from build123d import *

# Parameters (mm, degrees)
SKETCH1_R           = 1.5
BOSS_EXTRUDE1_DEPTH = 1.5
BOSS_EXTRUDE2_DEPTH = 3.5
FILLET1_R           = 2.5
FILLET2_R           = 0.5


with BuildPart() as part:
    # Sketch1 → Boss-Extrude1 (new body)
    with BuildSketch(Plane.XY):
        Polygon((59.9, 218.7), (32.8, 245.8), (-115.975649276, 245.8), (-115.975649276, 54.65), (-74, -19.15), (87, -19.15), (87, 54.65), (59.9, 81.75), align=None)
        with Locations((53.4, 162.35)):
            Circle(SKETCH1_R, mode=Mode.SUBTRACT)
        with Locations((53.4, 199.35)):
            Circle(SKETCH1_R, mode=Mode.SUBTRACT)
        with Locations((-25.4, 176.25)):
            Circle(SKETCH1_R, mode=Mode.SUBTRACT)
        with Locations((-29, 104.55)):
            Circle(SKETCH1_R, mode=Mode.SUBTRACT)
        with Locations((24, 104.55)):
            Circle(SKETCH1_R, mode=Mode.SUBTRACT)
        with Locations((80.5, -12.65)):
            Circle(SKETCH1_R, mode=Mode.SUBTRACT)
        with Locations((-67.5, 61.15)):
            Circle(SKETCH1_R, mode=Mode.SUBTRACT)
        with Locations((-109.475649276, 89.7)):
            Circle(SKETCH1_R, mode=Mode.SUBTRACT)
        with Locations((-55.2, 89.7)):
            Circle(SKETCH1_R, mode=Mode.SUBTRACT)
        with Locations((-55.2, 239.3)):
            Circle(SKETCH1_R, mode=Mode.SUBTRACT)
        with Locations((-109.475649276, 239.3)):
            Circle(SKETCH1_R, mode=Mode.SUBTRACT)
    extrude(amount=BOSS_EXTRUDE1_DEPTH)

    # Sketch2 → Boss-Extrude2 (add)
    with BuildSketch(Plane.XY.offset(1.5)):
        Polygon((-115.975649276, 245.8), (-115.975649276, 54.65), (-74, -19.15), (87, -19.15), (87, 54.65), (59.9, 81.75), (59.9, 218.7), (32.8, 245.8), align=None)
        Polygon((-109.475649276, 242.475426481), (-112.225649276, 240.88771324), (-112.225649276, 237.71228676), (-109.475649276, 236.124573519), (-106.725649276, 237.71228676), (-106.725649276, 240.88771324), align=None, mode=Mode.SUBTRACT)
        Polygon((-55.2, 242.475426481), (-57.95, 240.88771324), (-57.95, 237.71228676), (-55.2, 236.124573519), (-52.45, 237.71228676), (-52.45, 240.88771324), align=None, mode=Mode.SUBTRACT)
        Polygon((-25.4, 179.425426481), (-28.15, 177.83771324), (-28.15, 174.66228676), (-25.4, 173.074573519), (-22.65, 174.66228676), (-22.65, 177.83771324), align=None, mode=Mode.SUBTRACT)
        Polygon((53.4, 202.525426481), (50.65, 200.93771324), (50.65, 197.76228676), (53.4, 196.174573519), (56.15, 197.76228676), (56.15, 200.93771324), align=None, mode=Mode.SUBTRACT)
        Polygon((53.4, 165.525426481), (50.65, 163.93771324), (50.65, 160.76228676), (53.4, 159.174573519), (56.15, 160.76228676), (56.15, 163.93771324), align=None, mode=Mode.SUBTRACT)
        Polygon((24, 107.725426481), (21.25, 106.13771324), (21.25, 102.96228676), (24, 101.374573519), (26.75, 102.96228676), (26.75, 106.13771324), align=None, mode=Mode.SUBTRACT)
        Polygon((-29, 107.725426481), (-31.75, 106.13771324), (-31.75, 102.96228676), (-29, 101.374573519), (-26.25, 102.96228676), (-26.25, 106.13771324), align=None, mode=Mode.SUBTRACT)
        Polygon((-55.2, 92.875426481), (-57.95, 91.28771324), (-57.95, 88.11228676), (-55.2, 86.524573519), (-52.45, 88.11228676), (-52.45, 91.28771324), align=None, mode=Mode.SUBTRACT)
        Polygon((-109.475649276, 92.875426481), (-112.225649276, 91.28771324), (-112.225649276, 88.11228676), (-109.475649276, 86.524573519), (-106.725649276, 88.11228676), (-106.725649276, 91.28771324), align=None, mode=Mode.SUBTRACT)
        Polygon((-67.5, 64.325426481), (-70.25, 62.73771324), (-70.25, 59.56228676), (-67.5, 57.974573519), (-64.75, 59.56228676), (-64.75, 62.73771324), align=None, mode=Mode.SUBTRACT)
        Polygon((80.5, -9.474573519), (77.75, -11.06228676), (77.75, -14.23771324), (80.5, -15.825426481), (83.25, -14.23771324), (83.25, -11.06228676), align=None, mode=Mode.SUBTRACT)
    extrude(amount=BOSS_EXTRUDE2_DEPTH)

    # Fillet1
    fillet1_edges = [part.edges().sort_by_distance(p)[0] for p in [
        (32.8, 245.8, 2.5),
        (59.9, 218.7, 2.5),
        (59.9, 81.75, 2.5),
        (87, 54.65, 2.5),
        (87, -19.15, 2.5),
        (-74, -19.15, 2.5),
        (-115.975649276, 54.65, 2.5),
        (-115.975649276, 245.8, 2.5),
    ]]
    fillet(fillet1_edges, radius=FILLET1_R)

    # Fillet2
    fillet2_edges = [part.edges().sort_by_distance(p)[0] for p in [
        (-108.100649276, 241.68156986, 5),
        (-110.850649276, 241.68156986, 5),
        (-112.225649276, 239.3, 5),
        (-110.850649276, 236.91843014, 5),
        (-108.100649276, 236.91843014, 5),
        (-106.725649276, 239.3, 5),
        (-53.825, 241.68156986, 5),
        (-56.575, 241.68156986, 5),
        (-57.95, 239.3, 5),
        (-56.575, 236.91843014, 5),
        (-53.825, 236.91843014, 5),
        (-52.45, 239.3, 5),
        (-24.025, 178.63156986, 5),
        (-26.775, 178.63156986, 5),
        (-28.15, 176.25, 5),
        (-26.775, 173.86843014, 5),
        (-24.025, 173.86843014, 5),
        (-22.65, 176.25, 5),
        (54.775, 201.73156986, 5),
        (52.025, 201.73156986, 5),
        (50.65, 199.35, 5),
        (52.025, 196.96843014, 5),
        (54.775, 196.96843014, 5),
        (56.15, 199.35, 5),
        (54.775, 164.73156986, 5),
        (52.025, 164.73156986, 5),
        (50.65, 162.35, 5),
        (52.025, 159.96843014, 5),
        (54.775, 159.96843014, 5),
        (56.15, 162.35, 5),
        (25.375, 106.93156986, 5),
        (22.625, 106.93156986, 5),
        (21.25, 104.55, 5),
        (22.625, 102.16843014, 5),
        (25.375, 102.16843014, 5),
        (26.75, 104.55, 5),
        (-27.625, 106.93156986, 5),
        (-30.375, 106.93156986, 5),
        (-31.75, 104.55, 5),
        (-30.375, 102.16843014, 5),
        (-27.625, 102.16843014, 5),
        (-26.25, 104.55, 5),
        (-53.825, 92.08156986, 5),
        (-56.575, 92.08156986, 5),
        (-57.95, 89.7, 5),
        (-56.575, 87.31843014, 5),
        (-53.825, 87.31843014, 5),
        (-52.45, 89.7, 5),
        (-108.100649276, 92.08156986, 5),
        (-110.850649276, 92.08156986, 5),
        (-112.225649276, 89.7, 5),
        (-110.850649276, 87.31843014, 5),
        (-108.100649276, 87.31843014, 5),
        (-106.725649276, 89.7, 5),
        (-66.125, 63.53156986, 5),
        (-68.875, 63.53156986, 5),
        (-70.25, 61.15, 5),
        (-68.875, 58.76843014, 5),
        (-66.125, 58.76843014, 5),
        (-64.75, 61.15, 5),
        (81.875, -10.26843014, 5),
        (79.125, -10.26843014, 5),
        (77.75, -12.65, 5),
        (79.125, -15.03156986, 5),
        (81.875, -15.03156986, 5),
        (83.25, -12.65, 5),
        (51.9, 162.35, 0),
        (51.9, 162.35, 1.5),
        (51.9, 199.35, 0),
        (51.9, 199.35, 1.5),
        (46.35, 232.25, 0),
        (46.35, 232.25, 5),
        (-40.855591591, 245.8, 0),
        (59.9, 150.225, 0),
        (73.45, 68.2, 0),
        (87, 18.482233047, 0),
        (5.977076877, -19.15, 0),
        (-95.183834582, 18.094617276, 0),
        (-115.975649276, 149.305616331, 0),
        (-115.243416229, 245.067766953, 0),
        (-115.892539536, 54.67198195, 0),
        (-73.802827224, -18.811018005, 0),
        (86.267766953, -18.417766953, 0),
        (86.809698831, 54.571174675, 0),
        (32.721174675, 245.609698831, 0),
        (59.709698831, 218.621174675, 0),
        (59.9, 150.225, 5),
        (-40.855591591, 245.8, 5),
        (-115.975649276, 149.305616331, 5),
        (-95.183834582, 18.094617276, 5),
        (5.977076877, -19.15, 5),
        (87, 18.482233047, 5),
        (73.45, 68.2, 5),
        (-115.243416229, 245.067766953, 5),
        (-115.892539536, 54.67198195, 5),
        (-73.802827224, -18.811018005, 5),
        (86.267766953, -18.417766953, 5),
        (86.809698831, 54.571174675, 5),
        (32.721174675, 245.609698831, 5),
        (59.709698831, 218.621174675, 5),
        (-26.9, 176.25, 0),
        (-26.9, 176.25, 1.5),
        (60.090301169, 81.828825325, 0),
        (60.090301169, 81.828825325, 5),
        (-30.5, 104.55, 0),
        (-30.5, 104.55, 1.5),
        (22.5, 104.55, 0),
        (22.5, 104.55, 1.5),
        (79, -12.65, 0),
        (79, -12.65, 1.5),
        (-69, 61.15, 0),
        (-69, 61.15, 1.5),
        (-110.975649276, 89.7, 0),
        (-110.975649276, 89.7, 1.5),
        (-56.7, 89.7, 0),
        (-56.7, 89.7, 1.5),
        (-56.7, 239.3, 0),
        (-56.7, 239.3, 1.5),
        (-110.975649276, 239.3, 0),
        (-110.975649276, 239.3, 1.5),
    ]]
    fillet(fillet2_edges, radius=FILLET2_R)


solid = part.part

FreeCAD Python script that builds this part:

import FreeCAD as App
import Part
import Sketcher

V = App.Vector
Q = App.Units.Quantity


def edges_at(feature, points):
    """Names of the edges that pass closest to the given points."""
    edges = feature.Shape.Edges
    near = lambda p: min(range(len(edges)), key=lambda i: edges[i].distToShape(Part.Vertex(*p))[0])
    return sorted({f"Edge{near(p) + 1}" for p in points})


def add_polygon(sketch, points):
    """Adds a closed chain of lines whose ends are joined by coincident constraints."""
    first, n = sketch.GeometryCount, len(points)
    for a, b in zip(points, points[1:] + points[:1]):
        sketch.addGeometry(Part.LineSegment(App.Vector(*a, 0), App.Vector(*b, 0)), False)
    for i in range(n):
        sketch.addConstraint(Sketcher.Constraint("Coincident", first + i, 2, first + (i + 1) % n, 1))

doc = App.newDocument("Part")
body = doc.addObject("PartDesign::Body", "Body")

sketch1 = body.newObject("Sketcher::SketchObject", "Sketch")
sketch1.AttachmentSupport = (doc.getObject("XY_Plane"), [""])
sketch1.MapMode = "FlatFace"
add_polygon(sketch1, [(59.9, 218.7), (32.8, 245.8), (-116, 245.8), (-116, 54.6), (-74, -19.1), (87, -19.1), (87, 54.6), (59.9, 81.8)])
sketch1.addGeometry(Part.Circle(V(-67.5, 61.1, 0), V(0, 0, 1), 1.5), False)
sketch1.addGeometry(Part.Circle(V(-109.5, 89.7, 0), V(0, 0, 1), 1.5), False)
sketch1.addGeometry(Part.Circle(V(-55.2, 89.7, 0), V(0, 0, 1), 1.5), False)
sketch1.addGeometry(Part.Circle(V(-29, 104.5, 0), V(0, 0, 1), 1.5), False)
sketch1.addGeometry(Part.Circle(V(80.5, -12.7, 0), V(0, 0, 1), 1.5), False)
sketch1.addGeometry(Part.Circle(V(24, 104.5, 0), V(0, 0, 1), 1.5), False)
sketch1.addGeometry(Part.Circle(V(-25.4, 176.2, 0), V(0, 0, 1), 1.5), False)
sketch1.addGeometry(Part.Circle(V(-109.5, 239.3, 0), V(0, 0, 1), 1.5), False)
sketch1.addGeometry(Part.Circle(V(-55.2, 239.3, 0), V(0, 0, 1), 1.5), False)
sketch1.addGeometry(Part.Circle(V(53.4, 162.3, 0), V(0, 0, 1), 1.5), False)
sketch1.addGeometry(Part.Circle(V(53.4, 199.3, 0), V(0, 0, 1), 1.5), False)
sketch1.addConstraint([
    Sketcher.Constraint("Horizontal", 1),
    Sketcher.Constraint("Vertical", 2),
    Sketcher.Constraint("Horizontal", 4),
    Sketcher.Constraint("Vertical", 5),
    Sketcher.Constraint("Vertical", 7),
    Sketcher.Constraint("Equal", 8, 9),
    Sketcher.Constraint("Equal", 9, 10),
    Sketcher.Constraint("Equal", 10, 11),
    Sketcher.Constraint("Equal", 11, 12),
    Sketcher.Constraint("Equal", 12, 13),
    Sketcher.Constraint("Equal", 13, 14),
    Sketcher.Constraint("Equal", 14, 15),
    Sketcher.Constraint("Equal", 15, 16),
    Sketcher.Constraint("Equal", 16, 17),
    Sketcher.Constraint("Equal", 17, 18),
    Sketcher.Constraint("Parallel", 0, 6),
    Sketcher.Constraint("Horizontal", 9, 3, 10, 3),
    Sketcher.Constraint("Horizontal", 11, 3, 13, 3),
    Sketcher.Constraint("Horizontal", 15, 3, 16, 3),
    Sketcher.Constraint("Horizontal", 2, 2, 5, 2),
    Sketcher.Constraint("Vertical", 9, 3, 15, 3),
    Sketcher.Constraint("Vertical", 10, 3, 16, 3),
    Sketcher.Constraint("Vertical", 17, 3, 18, 3),
    Sketcher.Constraint("Equal", 0, 6),
    Sketcher.Constraint("Diameter", 8, Q("3 mm")),
    Sketcher.Constraint("DistanceX", 4, 1, 4, 2, Q("161 mm")),
    Sketcher.Constraint("Angle", 0, Q("135 deg")),
    Sketcher.Constraint("DistanceY", 5, 1, 5, 2, Q("73.8 mm")),
    Sketcher.Constraint("DistanceX", 11, 3, -1, 1, Q("29 mm")),
    Sketcher.Constraint("DistanceX", -1, 1, 13, 3, Q("24 mm")),
    Sketcher.Constraint("DistanceX", 3, 2, -1, 1, Q("74 mm")),
    Sketcher.Constraint("DistanceX", 8, 3, 12, 3, Q("148 mm")),
    Sketcher.Constraint("DistanceY", 17, 3, 18, 3, Q("37 mm")),
    Sketcher.Constraint("DistanceX", 16, 3, 0, 2, Q("88 mm")),
    Sketcher.Constraint("DistanceY", 2, 2, 2, 1, Q("191.15 mm")),
    Sketcher.Constraint("DistanceY", 7, 1, 7, 2, Q("136.95 mm")),
    Sketcher.Constraint("DistanceX", 8, 3, -1, 1, Q("67.5 mm")),
    Sketcher.Constraint("DistanceY", -1, 1, 9, 3, Q("89.7 mm")),
    Sketcher.Constraint("DistanceX", 14, 3, -1, 1, Q("25.4 mm")),
    Sketcher.Constraint("DistanceY", -1, 1, 15, 3, Q("239.3 mm")),
    Sketcher.Constraint("DistanceX", -1, 1, 17, 3, Q("53.4 mm")),
    Sketcher.Constraint("DistanceY", -1, 1, 0, 2, Q("245.8 mm")),
    Sketcher.Constraint("DistanceY", 8, 3, 11, 3, Q("43.4 mm")),
    Sketcher.Constraint("DistanceY", 12, 3, 11, 3, Q("117.2 mm")),
    Sketcher.Constraint("DistanceY", 11, 3, 14, 3, Q("71.7 mm")),
    Sketcher.Constraint("DistanceY", 13, 3, 17, 3, Q("57.8 mm")),
    Sketcher.Constraint("DistanceX", 1, 2, 15, 3, Q("6.5 mm")),
    Sketcher.Constraint("DistanceY", 2, 2, 8, 3, Q("6.5 mm")),
    Sketcher.Constraint("DistanceX", 1, 2, 1, 1, Q("148.775649 mm")),
])
pad1 = body.newObject("PartDesign::Pad", "Pad")
pad1.Profile = sketch1
pad1.Length = 1.5

sketch2 = body.newObject("Sketcher::SketchObject", "Sketch001")
sketch2.AttachmentSupport = (doc.getObject("XY_Plane"), [""])
sketch2.MapMode = "FlatFace"
sketch2.AttachmentOffset = App.Placement(V(0, 0, 1.5), App.Rotation())
add_polygon(sketch2, [(-116, 245.8), (-116, 54.6), (-74, -19.1), (87, -19.1), (87, 54.6), (59.9, 81.8), (59.9, 218.7), (32.8, 245.8)])
add_polygon(sketch2, [(-70.2, 62.7), (-67.5, 64.3), (-64.8, 62.7), (-64.8, 59.6), (-67.5, 58), (-70.2, 59.6)])
add_polygon(sketch2, [(-112.2, 91.3), (-109.5, 92.9), (-106.7, 91.3), (-106.7, 88.1), (-109.5, 86.5), (-112.2, 88.1)])
add_polygon(sketch2, [(-58, 91.3), (-55.2, 92.9), (-52.5, 91.3), (-52.5, 88.1), (-55.2, 86.5), (-58, 88.1)])
add_polygon(sketch2, [(-31.8, 106.1), (-29, 107.7), (-26.2, 106.1), (-26.2, 103), (-29, 101.4), (-31.8, 103)])
add_polygon(sketch2, [(77.8, -11.1), (80.5, -9.5), (83.2, -11.1), (83.2, -14.2), (80.5, -15.8), (77.8, -14.2)])
add_polygon(sketch2, [(21.2, 106.1), (24, 107.7), (26.8, 106.1), (26.8, 103), (24, 101.4), (21.2, 103)])
add_polygon(sketch2, [(-28.1, 177.8), (-25.4, 179.4), (-22.6, 177.8), (-22.6, 174.7), (-25.4, 173.1), (-28.1, 174.7)])
add_polygon(sketch2, [(-112.2, 240.9), (-109.5, 242.5), (-106.7, 240.9), (-106.7, 237.7), (-109.5, 236.1), (-112.2, 237.7)])
add_polygon(sketch2, [(-58, 240.9), (-55.2, 242.5), (-52.5, 240.9), (-52.5, 237.7), (-55.2, 236.1), (-58, 237.7)])
add_polygon(sketch2, [(50.6, 163.9), (53.4, 165.5), (56.1, 163.9), (56.1, 160.8), (53.4, 159.2), (50.6, 160.8)])
add_polygon(sketch2, [(50.6, 200.9), (53.4, 202.5), (56.1, 200.9), (56.1, 197.8), (53.4, 196.2), (50.6, 197.8)])
sketch2.addConstraint([
    Sketcher.Constraint("Vertical", 0),
    Sketcher.Constraint("Horizontal", 2),
    Sketcher.Constraint("Vertical", 3),
    Sketcher.Constraint("Vertical", 5),
    Sketcher.Constraint("Horizontal", 7),
    Sketcher.Constraint("Vertical", 10),
    Sketcher.Constraint("Vertical", 13),
    Sketcher.Constraint("Vertical", 16),
    Sketcher.Constraint("Vertical", 19),
    Sketcher.Constraint("Vertical", 22),
    Sketcher.Constraint("Vertical", 25),
    Sketcher.Constraint("Vertical", 28),
    Sketcher.Constraint("Vertical", 31),
    Sketcher.Constraint("Vertical", 34),
    Sketcher.Constraint("Vertical", 37),
    Sketcher.Constraint("Vertical", 40),
    Sketcher.Constraint("Vertical", 43),
    Sketcher.Constraint("Vertical", 46),
    Sketcher.Constraint("Vertical", 49),
    Sketcher.Constraint("Vertical", 52),
    Sketcher.Constraint("Vertical", 55),
    Sketcher.Constraint("Vertical", 58),
    Sketcher.Constraint("Vertical", 61),
    Sketcher.Constraint("Vertical", 64),
    Sketcher.Constraint("Vertical", 67),
    Sketcher.Constraint("Vertical", 70),
    Sketcher.Constraint("Vertical", 73),
    Sketcher.Constraint("Parallel", 4, 6),
    Sketcher.Constraint("Parallel", 8, 11),
    Sketcher.Constraint("Parallel", 9, 12),
    Sketcher.Constraint("Parallel", 11, 14),
    Sketcher.Constraint("Parallel", 12, 15),
    Sketcher.Constraint("Parallel", 14, 17),
    Sketcher.Constraint("Parallel", 15, 18),
    Sketcher.Constraint("Parallel", 17, 20),
    Sketcher.Constraint("Parallel", 18, 21),
    Sketcher.Constraint("Parallel", 20, 23),
    Sketcher.Constraint("Parallel", 21, 24),
    Sketcher.Constraint("Parallel", 23, 26),
    Sketcher.Constraint("Parallel", 24, 27),
    Sketcher.Constraint("Parallel", 26, 29),
    Sketcher.Constraint("Parallel", 27, 30),
    Sketcher.Constraint("Parallel", 29, 32),
    Sketcher.Constraint("Parallel", 30, 33),
    Sketcher.Constraint("Parallel", 32, 35),
    Sketcher.Constraint("Parallel", 33, 36),
    Sketcher.Constraint("Parallel", 35, 38),
    Sketcher.Constraint("Parallel", 36, 39),
    Sketcher.Constraint("Parallel", 38, 41),
    Sketcher.Constraint("Parallel", 39, 42),
    Sketcher.Constraint("Parallel", 41, 44),
    Sketcher.Constraint("Parallel", 42, 45),
    Sketcher.Constraint("Parallel", 44, 47),
    Sketcher.Constraint("Parallel", 45, 48),
    Sketcher.Constraint("Parallel", 47, 50),
    Sketcher.Constraint("Parallel", 48, 51),
    Sketcher.Constraint("Parallel", 50, 53),
    Sketcher.Constraint("Parallel", 51, 54),
    Sketcher.Constraint("Parallel", 53, 56),
    Sketcher.Constraint("Parallel", 54, 57),
    Sketcher.Constraint("Parallel", 56, 59),
    Sketcher.Constraint("Parallel", 57, 60),
    Sketcher.Constraint("Parallel", 59, 62),
    Sketcher.Constraint("Parallel", 60, 63),
    Sketcher.Constraint("Parallel", 62, 65),
    Sketcher.Constraint("Parallel", 63, 66),
    Sketcher.Constraint("Parallel", 65, 68),
    Sketcher.Constraint("Parallel", 66, 69),
    Sketcher.Constraint("Parallel", 68, 71),
    Sketcher.Constraint("Parallel", 69, 72),
    Sketcher.Constraint("Horizontal", 0, 2, 3, 2),
    Sketcher.Constraint("Horizontal", 10, 2, 12, 2),
    Sketcher.Constraint("Horizontal", 9, 2, 13, 2),
    Sketcher.Constraint("Horizontal", 16, 2, 18, 2),
    Sketcher.Constraint("Horizontal", 15, 2, 19, 2),
    Sketcher.Constraint("Horizontal", 14, 2, 20, 2),
    Sketcher.Constraint("Horizontal", 19, 2, 21, 2),
    Sketcher.Constraint("Horizontal", 18, 2, 22, 2),
    Sketcher.Constraint("Horizontal", 17, 2, 23, 2),
    Sketcher.Constraint("Horizontal", 22, 2, 24, 2),
    Sketcher.Constraint("Horizontal", 28, 2, 30, 2),
    Sketcher.Constraint("Horizontal", 27, 2, 31, 2),
    Sketcher.Constraint("Horizontal", 34, 2, 36, 2),
    Sketcher.Constraint("Horizontal", 33, 2, 37, 2),
    Sketcher.Constraint("Horizontal", 26, 2, 38, 2),
    Sketcher.Constraint("Horizontal", 31, 2, 39, 2),
    Sketcher.Constraint("Horizontal", 30, 2, 40, 2),
    Sketcher.Constraint("Horizontal", 29, 2, 41, 2),
    Sketcher.Constraint("Horizontal", 40, 2, 42, 2),
    Sketcher.Constraint("Horizontal", 46, 2, 48, 2),
    Sketcher.Constraint("Horizontal", 45, 2, 49, 2),
    Sketcher.Constraint("Horizontal", 52, 2, 54, 2),
    Sketcher.Constraint("Horizontal", 51, 2, 55, 2),
    Sketcher.Constraint("Horizontal", 50, 2, 56, 2),
    Sketcher.Constraint("Horizontal", 55, 2, 57, 2),
    Sketcher.Constraint("Horizontal", 54, 2, 58, 2),
    Sketcher.Constraint("Horizontal", 53, 2, 59, 2),
    Sketcher.Constraint("Horizontal", 58, 2, 60, 2),
    Sketcher.Constraint("Horizontal", 64, 2, 66, 2),
    Sketcher.Constraint("Horizontal", 63, 2, 67, 2),
    Sketcher.Constraint("Horizontal", 70, 2, 72, 2),
    Sketcher.Constraint("Horizontal", 69, 2, 73, 2),
    Sketcher.Constraint("Vertical", 8, 2, 11, 2),
    Sketcher.Constraint("Vertical", 17, 2, 50, 2),
    Sketcher.Constraint("Vertical", 16, 2, 51, 2),
    Sketcher.Constraint("Vertical", 23, 2, 56, 2),
    Sketcher.Constraint("Vertical", 65, 2, 68, 2),
    Sketcher.Constraint("Vertical", 64, 2, 69, 2),
    Sketcher.Constraint("Equal", 13, 16),
    Sketcher.Constraint("Equal", 25, 28),
    Sketcher.Constraint("Equal", 31, 34),
    Sketcher.Constraint("Equal", 43, 46),
    Sketcher.Constraint("Equal", 49, 52),
    Sketcher.Constraint("Equal", 61, 64),
    Sketcher.Constraint("Equal", 67, 70),
    Sketcher.Constraint("Equal", 4, 6),
    Sketcher.Constraint("Equal", 12, 14),
    Sketcher.Constraint("Equal", 24, 26),
    Sketcher.Constraint("Equal", 30, 32),
    Sketcher.Constraint("Equal", 42, 44),
    Sketcher.Constraint("Equal", 60, 62),
    Sketcher.Constraint("DistanceX", 2, 1, 2, 2, Q("161 mm")),
    Sketcher.Constraint("Angle", 4, Q("135 deg")),
    Sketcher.Constraint("Angle", 8, Q("30 deg")),
    Sketcher.Constraint("DistanceY", 3, 1, 3, 2, Q("73.8 mm")),
    Sketcher.Constraint("DistanceX", 1, 2, -1, 1, Q("74 mm")),
    Sketcher.Constraint("DistanceX", 26, 2, -1, 1, Q("29 mm")),
    Sketcher.Constraint("DistanceX", -1, 1, 38, 2, Q("24 mm")),
    Sketcher.Constraint("DistanceY", 0, 2, 0, 1, Q("191.15 mm")),
    Sketcher.Constraint("DistanceY", 5, 1, 5, 2, Q("136.95 mm")),
    Sketcher.Constraint("DistanceY", -1, 1, 5, 2, Q("218.7 mm")),
    Sketcher.Constraint("DistanceX", 8, 2, -1, 1, Q("67.5 mm")),
    Sketcher.Constraint("DistanceX", 20, 2, -1, 1, Q("55.2 mm")),
    Sketcher.Constraint("DistanceX", -1, 1, 32, 2, Q("80.5 mm")),
    Sketcher.Constraint("DistanceX", 44, 2, -1, 1, Q("25.4 mm")),
    Sketcher.Constraint("DistanceX", -1, 1, 62, 2, Q("53.4 mm")),
    Sketcher.Constraint("DistanceX", 9, 2, -1, 1, Q("64.75 mm")),
    Sketcher.Constraint("DistanceX", 7, 2, 7, 1, Q("148.775649 mm")),
    Sketcher.Constraint("DistanceY", 10, 2, 10, 1, Q("3.175426 mm")),
    Sketcher.Constraint("DistanceX", 14, 2, -1, 1, Q("109.475649 mm")),
    Sketcher.Constraint("DistanceY", -1, 1, 8, 2, Q("64.325426 mm")),
    Sketcher.Constraint("DistanceY", -1, 1, 14, 2, Q("92.875426 mm")),
    Sketcher.Constraint("DistanceY", -1, 1, 26, 2, Q("107.725426 mm")),
    Sketcher.Constraint("DistanceY", 32, 2, -1, 1, Q("9.474574 mm")),
    Sketcher.Constraint("DistanceY", -1, 1, 44, 2, Q("179.425426 mm")),
    Sketcher.Constraint("DistanceY", -1, 1, 50, 2, Q("242.475426 mm")),
    Sketcher.Constraint("DistanceY", -1, 1, 62, 2, Q("165.525426 mm")),
    Sketcher.Constraint("DistanceY", -1, 1, 68, 2, Q("202.525426 mm")),
])
pad2 = body.newObject("PartDesign::Pad", "Pad001")
pad2.Profile = sketch2
pad2.Length = 3.5
doc.recompute()

fillet = body.newObject("PartDesign::Fillet", "Fillet")
fillet.Base = (pad2, edges_at(pad2, [
    (32.8, 245.8, 2.5),
    (59.9, 218.7, 2.5),
    (59.9, 81.75, 2.5),
    (87, 54.65, 2.5),
    (87, -19.15, 2.5),
    (-74, -19.15, 2.5),
    (-115.976, 54.65, 2.5),
    (-115.976, 245.8, 2.5),
]))
fillet.Radius = 2.5
doc.recompute()

fillet2 = body.newObject("PartDesign::Fillet", "Fillet001")
fillet2.Base = (fillet, edges_at(fillet, [
    (-108.101, 241.682, 5),
    (-110.851, 241.682, 5),
    (-112.226, 239.3, 5),
    (-110.851, 236.918, 5),
    (-108.101, 236.918, 5),
    (-106.726, 239.3, 5),
    (-53.825, 241.682, 5),
    (-56.575, 241.682, 5),
    (-57.95, 239.3, 5),
    (-56.575, 236.918, 5),
    (-53.825, 236.918, 5),
    (-52.45, 239.3, 5),
    (-24.025, 178.632, 5),
    (-26.775, 178.632, 5),
    (-28.15, 176.25, 5),
    (-26.775, 173.868, 5),
    (-24.025, 173.868, 5),
    (-22.65, 176.25, 5),
    (54.775, 201.732, 5),
    (52.025, 201.732, 5),
    (50.65, 199.35, 5),
    (52.025, 196.968, 5),
    (54.775, 196.968, 5),
    (56.15, 199.35, 5),
    (54.775, 164.732, 5),
    (52.025, 164.732, 5),
    (50.65, 162.35, 5),
    (52.025, 159.968, 5),
    (54.775, 159.968, 5),
    (56.15, 162.35, 5),
    (25.375, 106.932, 5),
    (22.625, 106.932, 5),
    (21.25, 104.55, 5),
    (22.625, 102.168, 5),
    (25.375, 102.168, 5),
    (26.75, 104.55, 5),
    (-27.625, 106.932, 5),
    (-30.375, 106.932, 5),
    (-31.75, 104.55, 5),
    (-30.375, 102.168, 5),
    (-27.625, 102.168, 5),
    (-26.25, 104.55, 5),
    (-53.825, 92.082, 5),
    (-56.575, 92.082, 5),
    (-57.95, 89.7, 5),
    (-56.575, 87.318, 5),
    (-53.825, 87.318, 5),
    (-52.45, 89.7, 5),
    (-108.101, 92.082, 5),
    (-110.851, 92.082, 5),
    (-112.226, 89.7, 5),
    (-110.851, 87.318, 5),
    (-108.101, 87.318, 5),
    (-106.726, 89.7, 5),
    (-66.125, 63.532, 5),
    (-68.875, 63.532, 5),
    (-70.25, 61.15, 5),
    (-68.875, 58.768, 5),
    (-66.125, 58.768, 5),
    (-64.75, 61.15, 5),
    (81.875, -10.268, 5),
    (79.125, -10.268, 5),
    (77.75, -12.65, 5),
    (79.125, -15.032, 5),
    (81.875, -15.032, 5),
    (83.25, -12.65, 5),
    (51.9, 162.35, 0),
    (51.9, 162.35, 1.5),
    (51.9, 199.35, 0),
    (51.9, 199.35, 1.5),
    (46.35, 232.25, 0),
    (46.35, 232.25, 5),
    (-40.856, 245.8, 0),
    (59.9, 150.225, 0),
    (73.45, 68.2, 0),
    (87, 18.482, 0),
    (5.977, -19.15, 0),
    (-95.184, 18.095, 0),
    (-115.976, 149.306, 0),
    (-115.243, 245.068, 0),
    (-115.893, 54.672, 0),
    (-73.803, -18.811, 0),
    (86.268, -18.418, 0),
    (86.81, 54.571, 0),
    (32.721, 245.61, 0),
    (59.71, 218.621, 0),
    (59.9, 150.225, 5),
    (-40.856, 245.8, 5),
    (-115.976, 149.306, 5),
    (-95.184, 18.095, 5),
    (5.977, -19.15, 5),
    (87, 18.482, 5),
    (73.45, 68.2, 5),
    (-115.243, 245.068, 5),
    (-115.893, 54.672, 5),
    (-73.803, -18.811, 5),
    (86.268, -18.418, 5),
    (86.81, 54.571, 5),
    (32.721, 245.61, 5),
    (59.71, 218.621, 5),
    (-26.9, 176.25, 0),
    (-26.9, 176.25, 1.5),
    (60.09, 81.829, 0),
    (60.09, 81.829, 5),
    (-30.5, 104.55, 0),
    (-30.5, 104.55, 1.5),
    (22.5, 104.55, 0),
    (22.5, 104.55, 1.5),
    (79, -12.65, 0),
    (79, -12.65, 1.5),
    (-69, 61.15, 0),
    (-69, 61.15, 1.5),
    (-110.976, 89.7, 0),
    (-110.976, 89.7, 1.5),
    (-56.7, 89.7, 0),
    (-56.7, 89.7, 1.5),
    (-56.7, 239.3, 0),
    (-56.7, 239.3, 1.5),
    (-110.976, 239.3, 0),
    (-110.976, 239.3, 1.5),
]))
fillet2.Radius = 0.5

doc.recompute()
